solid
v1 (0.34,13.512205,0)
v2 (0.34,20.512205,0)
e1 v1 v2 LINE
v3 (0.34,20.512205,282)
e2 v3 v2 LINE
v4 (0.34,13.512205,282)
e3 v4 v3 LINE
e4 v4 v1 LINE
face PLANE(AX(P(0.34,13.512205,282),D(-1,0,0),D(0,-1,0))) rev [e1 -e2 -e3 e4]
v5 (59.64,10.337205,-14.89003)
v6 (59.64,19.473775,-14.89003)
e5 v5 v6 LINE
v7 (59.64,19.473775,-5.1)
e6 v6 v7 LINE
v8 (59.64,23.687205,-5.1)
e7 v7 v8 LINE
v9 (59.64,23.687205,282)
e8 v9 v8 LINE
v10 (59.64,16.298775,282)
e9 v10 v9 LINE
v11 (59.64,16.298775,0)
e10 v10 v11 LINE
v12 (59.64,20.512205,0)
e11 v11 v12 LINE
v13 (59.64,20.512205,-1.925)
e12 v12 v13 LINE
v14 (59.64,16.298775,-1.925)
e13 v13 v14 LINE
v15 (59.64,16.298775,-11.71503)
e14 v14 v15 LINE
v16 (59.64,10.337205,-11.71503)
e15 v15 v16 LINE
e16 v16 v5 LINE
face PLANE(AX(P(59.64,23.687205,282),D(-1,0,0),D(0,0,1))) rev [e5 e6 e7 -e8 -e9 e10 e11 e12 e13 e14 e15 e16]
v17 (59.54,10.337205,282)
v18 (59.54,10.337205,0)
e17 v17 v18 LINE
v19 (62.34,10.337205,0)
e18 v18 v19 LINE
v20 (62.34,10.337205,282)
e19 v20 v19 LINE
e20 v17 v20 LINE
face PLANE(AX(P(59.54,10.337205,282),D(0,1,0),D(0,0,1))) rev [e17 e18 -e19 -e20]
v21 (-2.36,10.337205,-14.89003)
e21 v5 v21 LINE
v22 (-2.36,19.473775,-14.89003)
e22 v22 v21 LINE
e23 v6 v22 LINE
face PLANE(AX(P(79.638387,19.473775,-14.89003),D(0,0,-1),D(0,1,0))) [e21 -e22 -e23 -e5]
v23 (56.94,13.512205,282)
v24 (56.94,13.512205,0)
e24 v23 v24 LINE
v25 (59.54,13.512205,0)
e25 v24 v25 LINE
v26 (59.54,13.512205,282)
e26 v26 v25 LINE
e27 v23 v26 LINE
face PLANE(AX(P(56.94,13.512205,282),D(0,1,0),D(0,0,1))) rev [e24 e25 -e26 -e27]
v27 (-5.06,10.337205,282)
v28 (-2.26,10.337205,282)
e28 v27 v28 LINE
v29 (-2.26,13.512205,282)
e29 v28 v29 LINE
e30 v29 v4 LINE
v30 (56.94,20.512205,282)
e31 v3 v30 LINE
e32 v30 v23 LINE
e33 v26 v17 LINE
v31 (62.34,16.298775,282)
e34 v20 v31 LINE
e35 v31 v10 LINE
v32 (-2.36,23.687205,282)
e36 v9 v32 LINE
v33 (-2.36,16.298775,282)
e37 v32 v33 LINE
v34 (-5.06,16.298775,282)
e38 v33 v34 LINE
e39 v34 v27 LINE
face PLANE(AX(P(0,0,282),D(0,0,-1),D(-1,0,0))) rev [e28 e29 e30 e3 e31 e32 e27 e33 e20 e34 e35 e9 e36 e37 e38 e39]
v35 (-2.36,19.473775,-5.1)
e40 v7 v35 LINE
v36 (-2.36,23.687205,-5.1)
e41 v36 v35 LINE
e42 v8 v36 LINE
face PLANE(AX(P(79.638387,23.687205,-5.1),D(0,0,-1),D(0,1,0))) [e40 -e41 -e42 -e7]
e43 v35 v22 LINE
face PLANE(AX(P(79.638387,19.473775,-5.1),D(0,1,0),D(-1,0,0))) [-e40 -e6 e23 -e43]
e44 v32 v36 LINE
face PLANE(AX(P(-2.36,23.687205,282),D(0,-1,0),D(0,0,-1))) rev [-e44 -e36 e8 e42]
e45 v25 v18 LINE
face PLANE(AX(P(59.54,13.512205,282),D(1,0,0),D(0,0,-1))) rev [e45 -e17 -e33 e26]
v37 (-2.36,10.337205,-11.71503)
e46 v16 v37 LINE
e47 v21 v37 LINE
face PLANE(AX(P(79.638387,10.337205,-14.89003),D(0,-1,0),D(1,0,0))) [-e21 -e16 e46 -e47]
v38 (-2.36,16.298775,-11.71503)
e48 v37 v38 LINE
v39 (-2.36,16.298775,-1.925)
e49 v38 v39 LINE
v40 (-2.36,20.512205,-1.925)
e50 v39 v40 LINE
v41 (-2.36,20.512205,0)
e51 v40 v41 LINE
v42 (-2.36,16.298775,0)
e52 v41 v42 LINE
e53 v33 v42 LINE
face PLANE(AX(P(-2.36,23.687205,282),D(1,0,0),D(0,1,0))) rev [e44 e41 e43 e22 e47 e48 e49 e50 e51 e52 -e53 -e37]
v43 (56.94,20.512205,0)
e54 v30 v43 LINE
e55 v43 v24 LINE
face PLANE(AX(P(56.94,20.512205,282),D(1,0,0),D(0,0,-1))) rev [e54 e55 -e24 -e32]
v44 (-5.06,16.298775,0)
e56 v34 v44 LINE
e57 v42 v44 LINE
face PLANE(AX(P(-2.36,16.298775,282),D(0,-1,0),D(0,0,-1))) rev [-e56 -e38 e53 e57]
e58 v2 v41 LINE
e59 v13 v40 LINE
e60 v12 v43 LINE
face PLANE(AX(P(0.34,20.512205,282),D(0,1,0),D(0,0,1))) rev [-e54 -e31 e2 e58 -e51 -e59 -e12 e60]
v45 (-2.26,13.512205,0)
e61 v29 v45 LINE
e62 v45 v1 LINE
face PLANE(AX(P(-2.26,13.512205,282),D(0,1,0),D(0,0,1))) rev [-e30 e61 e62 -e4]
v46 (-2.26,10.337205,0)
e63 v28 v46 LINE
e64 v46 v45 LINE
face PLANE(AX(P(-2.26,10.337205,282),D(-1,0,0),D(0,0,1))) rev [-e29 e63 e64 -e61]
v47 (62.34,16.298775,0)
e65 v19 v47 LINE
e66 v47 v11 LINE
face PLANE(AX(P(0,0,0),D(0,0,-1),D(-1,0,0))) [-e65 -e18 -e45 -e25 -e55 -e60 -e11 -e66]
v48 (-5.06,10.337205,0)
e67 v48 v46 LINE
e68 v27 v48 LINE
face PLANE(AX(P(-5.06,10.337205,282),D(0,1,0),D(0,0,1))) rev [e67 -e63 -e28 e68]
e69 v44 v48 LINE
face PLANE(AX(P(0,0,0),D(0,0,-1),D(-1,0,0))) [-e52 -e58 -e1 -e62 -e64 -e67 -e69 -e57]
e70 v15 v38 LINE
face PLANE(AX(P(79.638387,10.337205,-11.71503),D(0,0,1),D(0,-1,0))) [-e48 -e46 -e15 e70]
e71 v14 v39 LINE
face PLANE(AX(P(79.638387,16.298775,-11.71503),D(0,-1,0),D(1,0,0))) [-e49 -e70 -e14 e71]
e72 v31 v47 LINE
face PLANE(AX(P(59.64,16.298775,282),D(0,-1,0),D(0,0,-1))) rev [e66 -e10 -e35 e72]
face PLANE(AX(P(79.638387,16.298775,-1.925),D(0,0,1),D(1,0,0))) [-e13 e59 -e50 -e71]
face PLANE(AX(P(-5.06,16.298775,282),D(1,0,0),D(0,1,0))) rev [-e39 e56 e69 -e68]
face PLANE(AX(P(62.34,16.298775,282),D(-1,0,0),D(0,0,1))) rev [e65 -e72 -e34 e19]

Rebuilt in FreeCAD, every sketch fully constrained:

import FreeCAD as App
import Part
import Sketcher

doc = App.newDocument("Part")
body = doc.addObject("PartDesign::Body", "Body")

# Sketch on XY plane
sketch1 = body.newObject("Sketcher::SketchObject", "Sketch")
sketch1.AttachmentSupport = (doc.getObject("XY_Plane"), [""])
sketch1.MapMode = "FlatFace"
sketch1.addGeometry([
    Part.LineSegment(App.Vector(59.6, 23.7, 0), App.Vector(-2.4, 23.7, 0)),  # 0
    Part.LineSegment(App.Vector(-2.4, 23.7, 0), App.Vector(-2.4, 16.3, 0)),  # 1
    Part.LineSegment(App.Vector(-2.4, 16.3, 0), App.Vector(-5.1, 16.3, 0)),  # 2
    Part.LineSegment(App.Vector(-5.1, 16.3, 0), App.Vector(-5.1, 10.3, 0)),  # 3
    Part.LineSegment(App.Vector(-5.1, 10.3, 0), App.Vector(-2.3, 10.3, 0)),  # 4
    Part.LineSegment(App.Vector(-2.3, 10.3, 0), App.Vector(-2.3, 13.5, 0)),  # 5
    Part.LineSegment(App.Vector(-2.3, 13.5, 0), App.Vector(0.3, 13.5, 0)),  # 6
    Part.LineSegment(App.Vector(0.3, 13.5, 0), App.Vector(0.3, 20.5, 0)),  # 7
    Part.LineSegment(App.Vector(0.3, 20.5, 0), App.Vector(56.9, 20.5, 0)),  # 8
    Part.LineSegment(App.Vector(56.9, 20.5, 0), App.Vector(56.9, 13.5, 0)),  # 9
    Part.LineSegment(App.Vector(56.9, 13.5, 0), App.Vector(59.5, 13.5, 0)),  # 10
    Part.LineSegment(App.Vector(59.5, 13.5, 0), App.Vector(59.5, 10.3, 0)),  # 11
    Part.LineSegment(App.Vector(59.5, 10.3, 0), App.Vector(62.3, 10.3, 0)),  # 12
    Part.LineSegment(App.Vector(62.3, 10.3, 0), App.Vector(62.3, 16.3, 0)),  # 13
    Part.LineSegment(App.Vector(62.3, 16.3, 0), App.Vector(59.6, 16.3, 0)),  # 14
    Part.LineSegment(App.Vector(59.6, 16.3, 0), App.Vector(59.6, 23.7, 0)),  # 15
], False)
sketch1.addConstraint([
    Sketcher.Constraint("Coincident", 0, 2, 1, 1),
    Sketcher.Constraint("Coincident", 1, 2, 2, 1),
    Sketcher.Constraint("Coincident", 2, 2, 3, 1),
    Sketcher.Constraint("Coincident", 3, 2, 4, 1),
    Sketcher.Constraint("Coincident", 4, 2, 5, 1),
    Sketcher.Constraint("Coincident", 5, 2, 6, 1),
    Sketcher.Constraint("Coincident", 6, 2, 7, 1),
    Sketcher.Constraint("Coincident", 7, 2, 8, 1),
    Sketcher.Constraint("Coincident", 8, 2, 9, 1),
    Sketcher.Constraint("Coincident", 9, 2, 10, 1),
    Sketcher.Constraint("Coincident", 10, 2, 11, 1),
    Sketcher.Constraint("Coincident", 11, 2, 12, 1),
    Sketcher.Constraint("Coincident", 12, 2, 13, 1),
    Sketcher.Constraint("Coincident", 13, 2, 14, 1),
    Sketcher.Constraint("Coincident", 14, 2, 15, 1),
    Sketcher.Constraint("Coincident", 15, 2, 0, 1),
    Sketcher.Constraint("Horizontal", 0),
    Sketcher.Constraint("Vertical", 1),
    Sketcher.Constraint("Horizontal", 2),
    Sketcher.Constraint("Vertical", 3),
    Sketcher.Constraint("Horizontal", 4),
    Sketcher.Constraint("Vertical", 5),
    Sketcher.Constraint("Horizontal", 6),
    Sketcher.Constraint("Vertical", 7),
    Sketcher.Constraint("Horizontal", 8),
    Sketcher.Constraint("Vertical", 9),
    Sketcher.Constraint("Horizontal", 10),
    Sketcher.Constraint("Vertical", 11),
    Sketcher.Constraint("Horizontal", 12),
    Sketcher.Constraint("Vertical", 13),
    Sketcher.Constraint("Horizontal", 14),
    Sketcher.Constraint("Vertical", 15),
    Sketcher.Constraint("Horizontal", 6, 2, 9, 2),
    Sketcher.Constraint("Horizontal", 4, 2, 11, 2),
    Sketcher.Constraint("Horizontal", 2, 2, 13, 2),
    Sketcher.Constraint("Equal", 6, 10),
    Sketcher.Constraint("Equal", 4, 12),
    Sketcher.Constraint("Equal", 2, 14),
    Sketcher.Constraint("DistanceX", 0, 2, 0, 1, 62.0),
    Sketcher.Constraint("DistanceY", 7, 1, 7, 2, 7.0),
    Sketcher.Constraint("DistanceX", 2, 2, 2, 1, 2.7),
    Sketcher.Constraint("DistanceX", 4, 1, 4, 2, 2.8),
    Sketcher.Constraint("DistanceX", 6, 1, 6, 2, 2.6),
    Sketcher.Constraint("DistanceY", 5, 1, 5, 2, 3.175),
    Sketcher.Constraint("DistanceX", 0, 2, -1, 1, 2.36),
    Sketcher.Constraint("DistanceY", 3, 2, 0, 2, 13.35),
    Sketcher.Constraint("DistanceY", 1, 2, 1, 1, 7.38843),
    Sketcher.Constraint("DistanceY", -1, 1, 0, 2, 23.687205),
])
pad1 = body.newObject("PartDesign::Pad", "Pad")
pad1.Profile = sketch1
pad1.Length = 282

# Sketch on YZ plane
sketch2 = body.newObject("Sketcher::SketchObject", "Sketch001")
sketch2.AttachmentSupport = (doc.getObject("YZ_Plane"), [""])
sketch2.MapMode = "FlatFace"
sketch2.AttachmentOffset = App.Placement(App.Vector(0, 0, -2.36), App.Rotation())
sketch2.addGeometry([
    Part.LineSegment(App.Vector(23.7, 0, 0), App.Vector(23.7, -5.1, 0)),  # 0
    Part.LineSegment(App.Vector(23.7, -5.1, 0), App.Vector(19.5, -5.1, 0)),  # 1
    Part.LineSegment(App.Vector(19.5, -5.1, 0), App.Vector(19.5, -14.9, 0)),  # 2
    Part.LineSegment(App.Vector(19.5, -14.9, 0), App.Vector(10.3, -14.9, 0)),  # 3
    Part.LineSegment(App.Vector(10.3, -14.9, 0), App.Vector(10.3, -11.7, 0)),  # 4
    Part.LineSegment(App.Vector(10.3, -11.7, 0), App.Vector(16.3, -11.7, 0)),  # 5
    Part.LineSegment(App.Vector(16.3, -11.7, 0), App.Vector(16.3, -1.9, 0)),  # 6
    Part.LineSegment(App.Vector(16.3, -1.9, 0), App.Vector(20.5, -1.9, 0)),  # 7
    Part.LineSegment(App.Vector(20.5, -1.9, 0), App.Vector(20.5, 0, 0)),  # 8
    Part.LineSegment(App.Vector(20.5, 0, 0), App.Vector(23.7, 0, 0)),  # 9
], False)
sketch2.addConstraint([
    Sketcher.Constraint("Coincident", 0, 2, 1, 1),
    Sketcher.Constraint("Coincident", 1, 2, 2, 1),
    Sketcher.Constraint("Coincident", 2, 2, 3, 1),
    Sketcher.Constraint("Coincident", 3, 2, 4, 1),
    Sketcher.Constraint("Coincident", 4, 2, 5, 1),
    Sketcher.Constraint("Coincident", 5, 2, 6, 1),
    Sketcher.Constraint("Coincident", 6, 2, 7, 1),
    Sketcher.Constraint("Coincident", 7, 2, 8, 1),
    Sketcher.Constraint("Coincident", 8, 2, 9, 1),
    Sketcher.Constraint("Coincident", 9, 2, 0, 1),
    Sketcher.Constraint("Vertical", 0),
    Sketcher.Constraint("Horizontal", 1),
    Sketcher.Constraint("Vertical", 2),
    Sketcher.Constraint("Horizontal", 3),
    Sketcher.Constraint("Vertical", 4),
    Sketcher.Constraint("Horizontal", 5),
    Sketcher.Constraint("Vertical", 6),
    Sketcher.Constraint("Horizontal", 7),
    Sketcher.Constraint("Vertical", 8),
    Sketcher.Constraint("Horizontal", 9),
    Sketcher.Constraint("PointOnObject", 8, 2, -1),
    Sketcher.Constraint("Equal", 1, 7),
    Sketcher.Constraint("Equal", 9, 4),
    Sketcher.Constraint("Equal", 2, 6),
    Sketcher.Constraint("DistanceY", 0, 2, 0, 1, 5.1),
    Sketcher.Constraint("DistanceX", 9, 1, 9, 2, 3.175),
    Sketcher.Constraint("DistanceX", 3, 2, 0, 2, 13.35),
    Sketcher.Constraint("DistanceX", 1, 2, 1, 1, 4.21343),
    Sketcher.Constraint("DistanceY", 2, 2, 2, 1, 9.79003),
    Sketcher.Constraint("DistanceX", -1, 1, 0, 2, 23.687205),
])
pad2 = body.newObject("PartDesign::Pad", "Pad001")
pad2.Profile = sketch2
pad2.Length = 62

doc.recompute()
